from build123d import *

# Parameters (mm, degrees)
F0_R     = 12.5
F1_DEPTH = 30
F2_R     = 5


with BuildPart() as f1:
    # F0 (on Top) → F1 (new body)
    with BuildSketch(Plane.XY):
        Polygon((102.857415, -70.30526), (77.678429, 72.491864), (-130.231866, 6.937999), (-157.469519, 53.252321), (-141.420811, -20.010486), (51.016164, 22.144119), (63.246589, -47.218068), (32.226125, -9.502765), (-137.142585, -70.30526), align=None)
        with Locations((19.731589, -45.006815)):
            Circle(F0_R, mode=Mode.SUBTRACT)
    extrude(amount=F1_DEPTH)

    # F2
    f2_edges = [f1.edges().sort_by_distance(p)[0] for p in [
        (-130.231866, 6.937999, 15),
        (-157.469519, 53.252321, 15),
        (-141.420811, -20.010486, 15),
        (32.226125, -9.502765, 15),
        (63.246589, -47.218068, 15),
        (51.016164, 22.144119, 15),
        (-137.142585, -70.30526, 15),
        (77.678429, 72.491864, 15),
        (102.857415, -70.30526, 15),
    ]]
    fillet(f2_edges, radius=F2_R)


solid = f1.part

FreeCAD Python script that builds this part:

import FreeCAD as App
import Part
import Sketcher
Q = App.Units.Quantity


def edges_at(feature, points):
    """Names of the edges that pass closest to the given points."""
    edges = feature.Shape.Edges
    near = lambda p: min(range(len(edges)), key=lambda i: edges[i].distToShape(Part.Vertex(*p))[0])
    return sorted({f"Edge{near(p) + 1}" for p in points})


def add_polygon(sketch, points):
    """Adds a closed chain of lines whose ends are joined by coincident constraints."""
    first, n = sketch.GeometryCount, len(points)
    for a, b in zip(points, points[1:] + points[:1]):
        sketch.addGeometry(Part.LineSegment(App.Vector(*a, 0), App.Vector(*b, 0)), False)
    for i in range(n):
        sketch.addConstraint(Sketcher.Constraint("Coincident", first + i, 2, first + (i + 1) % n, 1))

doc = App.newDocument("Part")
body = doc.addObject("PartDesign::Body", "Body")

# Sketch on XY plane
sketch1 = body.newObject("Sketcher::SketchObject", "Sketch")
sketch1.AttachmentSupport = (doc.getObject("XY_Plane"), [""])
sketch1.MapMode = "FlatFace"
add_polygon(sketch1, [(103, -70), (78, 72), (-130, 7), (-157, 53), (-141, -20), (51, 22), (63, -47), (32, -10), (-137, -70)])  # lines 0-8
sketch1.addGeometry(Part.Circle(App.Vector(20, -45, 0), App.Vector(0, 0, 1), 12), False)  # 9
sketch1.addConstraint(Sketcher.Constraint("Horizontal", 8))
sketch1.addConstraint(Sketcher.Constraint("Perpendicular", 3, 4))
sketch1.addConstraint(Sketcher.Constraint("Parallel", 0, 5))
sketch1.addConstraint(Sketcher.Constraint("Diameter", 9, 25.0))
sketch1.addConstraint(Sketcher.Constraint("DistanceX", 8, 1, 8, 2, 240.0))
sketch1.addConstraint(Sketcher.Constraint("Angle", 0, Q("100 deg")))
sketch1.addConstraint(Sketcher.Constraint("Distance", 0, 145.0))
sketch1.addConstraint(Sketcher.Constraint("Distance", 1, 218.0))
sketch1.addConstraint(Sketcher.Constraint("Distance", 3, 74.999999))
sketch1.addConstraint(Sketcher.Constraint("Distance", 4, 197.0))
sketch1.addConstraint(Sketcher.Constraint("Angle", 1, Q("-162.5 deg")))
sketch1.addConstraint(Sketcher.Constraint("DistanceY", -1, 1, 1, 2, 6.937999))
sketch1.addConstraint(Sketcher.Constraint("DistanceX", 9, 3, 5, 2, 43.515))
sketch1.addConstraint(Sketcher.Constraint("DistanceX", 3, 2, 9, 3, 161.1524))
sketch1.addConstraint(Sketcher.Constraint("Distance", 5, 70.432211))
sketch1.addConstraint(Sketcher.Constraint("DistanceX", -1, 1, 9, 3, 19.731589))
sketch1.addConstraint(Sketcher.Constraint("DistanceX", -1, 1, 0, 2, 77.678429))
sketch1.addConstraint(Sketcher.Constraint("DistanceY", -1, 1, 2, 2, 53.252321))
sketch1.addConstraint(Sketcher.Constraint("DistanceY", 9, 3, 0, 2, 117.498679))
sketch1.addConstraint(Sketcher.Constraint("DistanceX", 6, 2, 4, 2, 18.790039))
sketch1.addConstraint(Sketcher.Constraint("DistanceY", 9, 3, 6, 2, 35.50405))
pad1 = body.newObject("PartDesign::Pad", "Pad")
pad1.Profile = sketch1
pad1.Length = 30
doc.recompute()

fillet = body.newObject("PartDesign::Fillet", "Fillet")
fillet.Base = (pad1, edges_at(pad1, [
    (-130.232, 6.938, 15),
    (-157.47, 53.252, 15),
    (-141.421, -20.01, 15),
    (32.226, -9.503, 15),
    (63.247, -47.218, 15),
    (51.016, 22.144, 15),
    (-137.143, -70.305, 15),
    (77.678, 72.492, 15),
    (102.857, -70.305, 15),
]))
fillet.Radius = 5

doc.recompute()
